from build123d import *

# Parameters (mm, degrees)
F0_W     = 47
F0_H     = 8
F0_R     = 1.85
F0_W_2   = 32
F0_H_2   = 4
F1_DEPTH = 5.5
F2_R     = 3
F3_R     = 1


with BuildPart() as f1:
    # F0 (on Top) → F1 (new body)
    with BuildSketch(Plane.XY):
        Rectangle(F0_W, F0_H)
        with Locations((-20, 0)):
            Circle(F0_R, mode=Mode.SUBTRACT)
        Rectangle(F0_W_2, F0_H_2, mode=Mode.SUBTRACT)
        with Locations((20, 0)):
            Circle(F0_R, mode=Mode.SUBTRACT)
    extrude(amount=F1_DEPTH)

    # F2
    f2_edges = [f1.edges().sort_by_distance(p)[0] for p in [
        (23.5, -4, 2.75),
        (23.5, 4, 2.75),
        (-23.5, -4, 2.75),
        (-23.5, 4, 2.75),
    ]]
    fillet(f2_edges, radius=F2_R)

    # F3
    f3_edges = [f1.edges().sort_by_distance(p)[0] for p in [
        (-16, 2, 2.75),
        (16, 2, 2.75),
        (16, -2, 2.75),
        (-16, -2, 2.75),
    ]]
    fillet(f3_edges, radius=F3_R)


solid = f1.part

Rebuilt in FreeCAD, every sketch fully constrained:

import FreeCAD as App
import Part
import Sketcher


def edges_at(feature, points):
    """Names of the edges that pass closest to the given points."""
    edges = feature.Shape.Edges
    near = lambda p: min(range(len(edges)), key=lambda i: edges[i].distToShape(Part.Vertex(*p))[0])
    return sorted({f"Edge{near(p) + 1}" for p in points})


def add_polygon(sketch, points):
    """Adds a closed chain of lines whose ends are joined by coincident constraints."""
    first, n = sketch.GeometryCount, len(points)
    for a, b in zip(points, points[1:] + points[:1]):
        sketch.addGeometry(Part.LineSegment(App.Vector(*a, 0), App.Vector(*b, 0)), False)
    for i in range(n):
        sketch.addConstraint(Sketcher.Constraint("Coincident", first + i, 2, first + (i + 1) % n, 1))

doc = App.newDocument("Part")
body = doc.addObject("PartDesign::Body", "Body")

sketch1 = doc.addObject("Sketcher::SketchObject", "Sketch")
body.addObject(sketch1)
sketch1.AttachmentSupport = (doc.XY_Plane, [""])
sketch1.MapMode = "FlatFace"
add_polygon(sketch1, [(-23.5, 4), (-23.5, -4), (23.5, -4), (23.5, 4)])
sketch1.addGeometry(Part.Circle(App.Vector(-20, 0, 0), App.Vector(0, 0, 1), 1.9), False)
add_polygon(sketch1, [(16, -2), (-16, -2), (-16, 2), (16, 2)])
sketch1.addGeometry(Part.Circle(App.Vector(20, 0, 0), App.Vector(0, 0, 1), 1.9), False)
sketch1.addConstraint([
    Sketcher.Constraint("Vertical", 0),
    Sketcher.Constraint("Horizontal", 1),
    Sketcher.Constraint("Vertical", 2),
    Sketcher.Constraint("Horizontal", 3),
    Sketcher.Constraint("Horizontal", 5),
    Sketcher.Constraint("Vertical", 6),
    Sketcher.Constraint("Horizontal", 7),
    Sketcher.Constraint("Vertical", 8),
    Sketcher.Constraint("Equal", 4, 9),
    Sketcher.Constraint("Symmetric", 4, 3, 9, 3, -1, 1),
    Sketcher.Constraint("Symmetric", 0, 2, 2, 2, -1, 1),
    Sketcher.Constraint("Symmetric", 5, 2, 7, 2, -1, 1),
    Sketcher.Constraint("PointOnObject", 4, 3, -1),
    Sketcher.Constraint("Diameter", 4, 3.7),
    Sketcher.Constraint("DistanceX", 1, 1, 1, 2, 47.0),
    Sketcher.Constraint("DistanceX", 5, 2, 5, 1, 32.0),
    Sketcher.Constraint("DistanceY", 0, 2, 0, 1, 8.0),
    Sketcher.Constraint("DistanceY", 6, 1, 6, 2, 4.0),
    Sketcher.Constraint("DistanceX", 4, 3, -1, 1, 20.0),
])
pad1 = doc.addObject("PartDesign::Pad", "Pad")
body.addObject(pad1)
pad1.Profile = sketch1
pad1.Length = 5.5
doc.recompute()

fillet = doc.addObject("PartDesign::Fillet", "Fillet")
body.addObject(fillet)
fillet.Base = (pad1, edges_at(pad1, [
    (23.5, -4, 2.75),
    (23.5, 4, 2.75),
    (-23.5, -4, 2.75),
    (-23.5, 4, 2.75),
]))
fillet.Radius = 3
doc.recompute()

fillet2 = doc.addObject("PartDesign::Fillet", "Fillet001")
body.addObject(fillet2)
fillet2.Base = (fillet, edges_at(fillet, [
    (-16, 2, 2.75),
    (16, 2, 2.75),
    (16, -2, 2.75),
    (-16, -2, 2.75),
]))
fillet2.Radius = 1

doc.recompute()
